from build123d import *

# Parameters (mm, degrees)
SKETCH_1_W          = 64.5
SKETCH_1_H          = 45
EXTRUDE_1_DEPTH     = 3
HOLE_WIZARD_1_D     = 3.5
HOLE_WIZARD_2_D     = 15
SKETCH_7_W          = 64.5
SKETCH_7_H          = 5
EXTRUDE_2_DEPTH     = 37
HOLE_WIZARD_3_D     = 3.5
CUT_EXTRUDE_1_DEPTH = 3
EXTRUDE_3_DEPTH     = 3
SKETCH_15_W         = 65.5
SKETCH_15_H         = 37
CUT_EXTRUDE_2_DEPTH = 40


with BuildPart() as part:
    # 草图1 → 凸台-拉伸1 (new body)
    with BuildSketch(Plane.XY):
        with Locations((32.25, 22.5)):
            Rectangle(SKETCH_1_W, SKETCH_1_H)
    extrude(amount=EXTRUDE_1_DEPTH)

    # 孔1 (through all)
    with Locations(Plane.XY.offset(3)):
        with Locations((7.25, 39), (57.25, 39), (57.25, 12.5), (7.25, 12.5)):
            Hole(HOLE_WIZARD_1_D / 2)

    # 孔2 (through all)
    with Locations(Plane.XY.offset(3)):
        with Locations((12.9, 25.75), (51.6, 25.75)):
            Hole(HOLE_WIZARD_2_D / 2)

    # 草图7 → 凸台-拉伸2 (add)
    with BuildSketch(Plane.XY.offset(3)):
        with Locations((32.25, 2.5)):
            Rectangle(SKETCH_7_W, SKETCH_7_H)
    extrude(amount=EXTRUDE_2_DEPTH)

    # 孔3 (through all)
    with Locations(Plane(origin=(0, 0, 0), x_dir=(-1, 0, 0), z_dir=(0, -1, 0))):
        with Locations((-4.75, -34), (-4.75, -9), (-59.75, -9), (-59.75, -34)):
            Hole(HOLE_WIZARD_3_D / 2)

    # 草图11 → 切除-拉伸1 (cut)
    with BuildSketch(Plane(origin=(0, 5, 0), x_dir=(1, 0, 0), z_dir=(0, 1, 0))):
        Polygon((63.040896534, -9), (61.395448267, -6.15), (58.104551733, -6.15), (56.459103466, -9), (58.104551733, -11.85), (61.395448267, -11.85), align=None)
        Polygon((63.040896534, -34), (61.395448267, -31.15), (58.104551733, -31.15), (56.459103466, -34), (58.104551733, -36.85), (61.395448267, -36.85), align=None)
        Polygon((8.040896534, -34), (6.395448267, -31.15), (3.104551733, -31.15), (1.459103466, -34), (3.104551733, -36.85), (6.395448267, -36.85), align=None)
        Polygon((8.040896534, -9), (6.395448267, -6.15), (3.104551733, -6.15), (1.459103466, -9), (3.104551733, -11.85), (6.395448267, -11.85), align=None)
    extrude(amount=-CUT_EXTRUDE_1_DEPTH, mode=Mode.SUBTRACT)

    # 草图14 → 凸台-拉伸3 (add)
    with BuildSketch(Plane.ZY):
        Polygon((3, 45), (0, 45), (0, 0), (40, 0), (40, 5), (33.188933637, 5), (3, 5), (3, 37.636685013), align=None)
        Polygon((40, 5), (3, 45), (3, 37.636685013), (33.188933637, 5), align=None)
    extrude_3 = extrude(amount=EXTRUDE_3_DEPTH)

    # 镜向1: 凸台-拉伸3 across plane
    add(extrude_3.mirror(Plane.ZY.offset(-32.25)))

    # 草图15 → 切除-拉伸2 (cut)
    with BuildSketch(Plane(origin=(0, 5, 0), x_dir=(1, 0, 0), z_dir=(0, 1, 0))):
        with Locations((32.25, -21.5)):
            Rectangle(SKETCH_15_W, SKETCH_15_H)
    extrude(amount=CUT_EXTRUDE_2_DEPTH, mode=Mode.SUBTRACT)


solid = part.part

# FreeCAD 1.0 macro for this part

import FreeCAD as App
import Part
import Sketcher
Q = App.Units.Quantity

doc = App.newDocument("Part")
body = doc.addObject("PartDesign::Body", "Body")

sketch1 = doc.addObject("Sketcher::SketchObject", "Sketch")
body.addObject(sketch1)
sketch1.AttachmentSupport = (doc.XY_Plane, [""])
sketch1.MapMode = "FlatFace"
sketch1.addGeometry(Part.LineSegment(App.Vector(0, 45, 0), App.Vector(0, 0, 0)), False)
sketch1.addGeometry(Part.LineSegment(App.Vector(0, 0, 0), App.Vector(64.5, 0, 0)), False)
sketch1.addGeometry(Part.LineSegment(App.Vector(64.5, 0, 0), App.Vector(64.5, 45, 0)), False)
sketch1.addGeometry(Part.LineSegment(App.Vector(64.5, 45, 0), App.Vector(0, 45, 0)), False)
sketch1.addConstraint(Sketcher.Constraint("Coincident", 0, 2, 1, 1))
sketch1.addConstraint(Sketcher.Constraint("Coincident", 1, 2, 2, 1))
sketch1.addConstraint(Sketcher.Constraint("Coincident", 2, 2, 3, 1))
sketch1.addConstraint(Sketcher.Constraint("Coincident", 3, 2, 0, 1))
sketch1.addConstraint(Sketcher.Constraint("Vertical", 0))
sketch1.addConstraint(Sketcher.Constraint("Horizontal", 1))
sketch1.addConstraint(Sketcher.Constraint("Vertical", 2))
sketch1.addConstraint(Sketcher.Constraint("Horizontal", 3))
sketch1.addConstraint(Sketcher.Constraint("Coincident", 0, 2, -1, 1))
sketch1.addConstraint(Sketcher.Constraint("DistanceY", 0, 2, 0, 1, Q("45 mm")))
sketch1.addConstraint(Sketcher.Constraint("DistanceX", 1, 1, 1, 2, Q("64.5 mm")))
pad1 = doc.addObject("PartDesign::Pad", "Pad")
body.addObject(pad1)
pad1.Profile = sketch1
pad1.Length = 3

sketch2 = doc.addObject("Sketcher::SketchObject", "Sketch001")
body.addObject(sketch2)
sketch2.AttachmentSupport = (doc.XY_Plane, [""])
sketch2.MapMode = "FlatFace"
sketch2.AttachmentOffset = App.Placement(App.Vector(0, 0, 3), App.Rotation())
sketch2.addGeometry(Part.Circle(App.Vector(7.25, 39, 0), App.Vector(0, 0, 1), 1.75), False)
sketch2.addGeometry(Part.Circle(App.Vector(57.25, 39, 0), App.Vector(0, 0, 1), 1.75), False)
sketch2.addGeometry(Part.Circle(App.Vector(57.25, 12.5, 0), App.Vector(0, 0, 1), 1.75), False)
sketch2.addGeometry(Part.Circle(App.Vector(7.25, 12.5, 0), App.Vector(0, 0, 1), 1.75), False)
sketch2.addConstraint(Sketcher.Constraint("Equal", 0, 1))
sketch2.addConstraint(Sketcher.Constraint("Equal", 1, 2))
sketch2.addConstraint(Sketcher.Constraint("Equal", 2, 3))
sketch2.addConstraint(Sketcher.Constraint("Horizontal", 0, 3, 1, 3))
sketch2.addConstraint(Sketcher.Constraint("Horizontal", 2, 3, 3, 3))
sketch2.addConstraint(Sketcher.Constraint("Vertical", 1, 3, 2, 3))
sketch2.addConstraint(Sketcher.Constraint("Vertical", 0, 3, 3, 3))
sketch2.addConstraint(Sketcher.Constraint("Diameter", 0, Q("3.5 mm")))
sketch2.addConstraint(Sketcher.Constraint("DistanceY", -1, 1, 0, 3, Q("39 mm")))
sketch2.addConstraint(Sketcher.Constraint("DistanceX", 0, 3, 1, 3, Q("50 mm")))
sketch2.addConstraint(Sketcher.Constraint("DistanceY", -1, 1, 2, 3, Q("12.5 mm")))
sketch2.addConstraint(Sketcher.Constraint("DistanceX", -1, 1, 0, 3, Q("7.25 mm")))
doc.recompute()
hole = doc.addObject("PartDesign::Hole", "Hole")
body.addObject(hole)
hole.Profile = sketch2
hole.ThreadType = "None"
hole.Diameter = 3.5
hole.DepthType = "ThroughAll"

sketch3 = doc.addObject("Sketcher::SketchObject", "Sketch002")
body.addObject(sketch3)
sketch3.AttachmentSupport = (doc.XY_Plane, [""])
sketch3.MapMode = "FlatFace"
sketch3.AttachmentOffset = App.Placement(App.Vector(0, 0, 3), App.Rotation())
sketch3.addGeometry(Part.Circle(App.Vector(12.9, 25.75, 0), App.Vector(0, 0, 1), 7.5), False)
sketch3.addGeometry(Part.Circle(App.Vector(51.6, 25.75, 0), App.Vector(0, 0, 1), 7.5), False)
sketch3.addConstraint(Sketcher.Constraint("Equal", 0, 1))
sketch3.addConstraint(Sketcher.Constraint("Horizontal", 0, 3, 1, 3))
sketch3.addConstraint(Sketcher.Constraint("Diameter", 0, Q("15 mm")))
sketch3.addConstraint(Sketcher.Constraint("DistanceX", -1, 1, 0, 3, Q("12.9 mm")))
sketch3.addConstraint(Sketcher.Constraint("DistanceX", -1, 1, 1, 3, Q("51.6 mm")))
sketch3.addConstraint(Sketcher.Constraint("DistanceY", -1, 1, 0, 3, Q("25.75 mm")))
doc.recompute()
hole2 = doc.addObject("PartDesign::Hole", "Hole001")
body.addObject(hole2)
hole2.Profile = sketch3
hole2.ThreadType = "None"
hole2.Diameter = 15
hole2.DepthType = "ThroughAll"

sketch4 = doc.addObject("Sketcher::SketchObject", "Sketch003")
body.addObject(sketch4)
sketch4.AttachmentSupport = (doc.XY_Plane, [""])
sketch4.MapMode = "FlatFace"
sketch4.AttachmentOffset = App.Placement(App.Vector(0, 0, 3), App.Rotation())
sketch4.addGeometry(Part.LineSegment(App.Vector(0, 5, 0), App.Vector(0, 0, 0)), False)
sketch4.addGeometry(Part.LineSegment(App.Vector(0, 0, 0), App.Vector(64.5, 0, 0)), False)
sketch4.addGeometry(Part.LineSegment(App.Vector(64.5, 0, 0), App.Vector(64.5, 5, 0)), False)
sketch4.addGeometry(Part.LineSegment(App.Vector(64.5, 5, 0), App.Vector(0, 5, 0)), False)
sketch4.addConstraint(Sketcher.Constraint("Coincident", 0, 2, 1, 1))
sketch4.addConstraint(Sketcher.Constraint("Coincident", 1, 2, 2, 1))
sketch4.addConstraint(Sketcher.Constraint("Coincident", 2, 2, 3, 1))
sketch4.addConstraint(Sketcher.Constraint("Coincident", 3, 2, 0, 1))
sketch4.addConstraint(Sketcher.Constraint("Vertical", 0))
sketch4.addConstraint(Sketcher.Constraint("Horizontal", 1))
sketch4.addConstraint(Sketcher.Constraint("Vertical", 2))
sketch4.addConstraint(Sketcher.Constraint("Horizontal", 3))
sketch4.addConstraint(Sketcher.Constraint("Coincident", 0, 2, -1, 1))
sketch4.addConstraint(Sketcher.Constraint("DistanceY", 0, 2, 0, 1, Q("5 mm")))
sketch4.addConstraint(Sketcher.Constraint("DistanceX", 1, 1, 1, 2, Q("64.5 mm")))
pad2 = doc.addObject("PartDesign::Pad", "Pad001")
body.addObject(pad2)
pad2.Profile = sketch4
pad2.Length = 37

sketch5 = doc.addObject("Sketcher::SketchObject", "Sketch004")
body.addObject(sketch5)
sketch5.AttachmentSupport = (doc.XZ_Plane, [""])
sketch5.MapMode = "FlatFace"
sketch5.addGeometry(Part.Circle(App.Vector(4.75, 34, 0), App.Vector(0, 0, 1), 1.75), False)
sketch5.addGeometry(Part.Circle(App.Vector(4.75, 9, 0), App.Vector(0, 0, 1), 1.75), False)
sketch5.addGeometry(Part.Circle(App.Vector(59.75, 9, 0), App.Vector(0, 0, 1), 1.75), False)
sketch5.addGeometry(Part.Circle(App.Vector(59.75, 34, 0), App.Vector(0, 0, 1), 1.75), False)
sketch5.addConstraint(Sketcher.Constraint("Equal", 0, 1))
sketch5.addConstraint(Sketcher.Constraint("Equal", 1, 2))
sketch5.addConstraint(Sketcher.Constraint("Equal", 2, 3))
sketch5.addConstraint(Sketcher.Constraint("Horizontal", 1, 3, 2, 3))
sketch5.addConstraint(Sketcher.Constraint("Horizontal", 0, 3, 3, 3))
sketch5.addConstraint(Sketcher.Constraint("Vertical", 0, 3, 1, 3))
sketch5.addConstraint(Sketcher.Constraint("Vertical", 2, 3, 3, 3))
sketch5.addConstraint(Sketcher.Constraint("Diameter", 0, Q("3.5 mm")))
sketch5.addConstraint(Sketcher.Constraint("DistanceY", -1, 1, 0, 3, Q("34 mm")))
sketch5.addConstraint(Sketcher.Constraint("DistanceY", -1, 1, 1, 3, Q("9 mm")))
sketch5.addConstraint(Sketcher.Constraint("DistanceX", 1, 3, 2, 3, Q("55 mm")))
sketch5.addConstraint(Sketcher.Constraint("DistanceX", -1, 1, 0, 3, Q("4.75 mm")))
doc.recompute()
hole3 = doc.addObject("PartDesign::Hole", "Hole002")
body.addObject(hole3)
hole3.Profile = sketch5
hole3.ThreadType = "None"
hole3.Diameter = 3.5
hole3.DepthType = "ThroughAll"

sketch6 = doc.addObject("Sketcher::SketchObject", "Sketch005")
body.addObject(sketch6)
sketch6.AttachmentSupport = (doc.XZ_Plane, [""])
sketch6.MapMode = "FlatFace"
sketch6.AttachmentOffset = App.Placement(App.Vector(0, 0, -5), App.Rotation())
sketch6.addGeometry(Part.LineSegment(App.Vector(63.040897, 9, 0), App.Vector(61.395448, 6.15, 0)), False)
sketch6.addGeometry(Part.LineSegment(App.Vector(61.395448, 6.15, 0), App.Vector(58.104552, 6.15, 0)), False)
sketch6.addGeometry(Part.LineSegment(App.Vector(58.104552, 6.15, 0), App.Vector(56.459103, 9, 0)), False)
sketch6.addGeometry(Part.LineSegment(App.Vector(56.459103, 9, 0), App.Vector(58.104552, 11.85, 0)), False)
sketch6.addGeometry(Part.LineSegment(App.Vector(58.104552, 11.85, 0), App.Vector(61.395448, 11.85, 0)), False)
sketch6.addGeometry(Part.LineSegment(App.Vector(61.395448, 11.85, 0), App.Vector(63.040897, 9, 0)), False)
sketch6.addGeometry(Part.LineSegment(App.Vector(63.040897, 34, 0), App.Vector(61.395448, 31.15, 0)), False)
sketch6.addGeometry(Part.LineSegment(App.Vector(61.395448, 31.15, 0), App.Vector(58.104552, 31.15, 0)), False)
sketch6.addGeometry(Part.LineSegment(App.Vector(58.104552, 31.15, 0), App.Vector(56.459103, 34, 0)), False)
sketch6.addGeometry(Part.LineSegment(App.Vector(56.459103, 34, 0), App.Vector(58.104552, 36.85, 0)), False)
sketch6.addGeometry(Part.LineSegment(App.Vector(58.104552, 36.85, 0), App.Vector(61.395448, 36.85, 0)), False)
sketch6.addGeometry(Part.LineSegment(App.Vector(61.395448, 36.85, 0), App.Vector(63.040897, 34, 0)), False)
sketch6.addGeometry(Part.LineSegment(App.Vector(8.040897, 34, 0), App.Vector(6.395448, 31.15, 0)), False)
sketch6.addGeometry(Part.LineSegment(App.Vector(6.395448, 31.15, 0), App.Vector(3.104552, 31.15, 0)), False)
sketch6.addGeometry(Part.LineSegment(App.Vector(3.104552, 31.15, 0), App.Vector(1.459103, 34, 0)), False)
sketch6.addGeometry(Part.LineSegment(App.Vector(1.459103, 34, 0), App.Vector(3.104552, 36.85, 0)), False)
sketch6.addGeometry(Part.LineSegment(App.Vector(3.104552, 36.85, 0), App.Vector(6.395448, 36.85, 0)), False)
sketch6.addGeometry(Part.LineSegment(App.Vector(6.395448, 36.85, 0), App.Vector(8.040897, 34, 0)), False)
sketch6.addGeometry(Part.LineSegment(App.Vector(8.040897, 9, 0), App.Vector(6.395448, 6.15, 0)), False)
sketch6.addGeometry(Part.LineSegment(App.Vector(6.395448, 6.15, 0), App.Vector(3.104552, 6.15, 0)), False)
sketch6.addGeometry(Part.LineSegment(App.Vector(3.104552, 6.15, 0), App.Vector(1.459103, 9, 0)), False)
sketch6.addGeometry(Part.LineSegment(App.Vector(1.459103, 9, 0), App.Vector(3.104552, 11.85, 0)), False)
sketch6.addGeometry(Part.LineSegment(App.Vector(3.104552, 11.85, 0), App.Vector(6.395448, 11.85, 0)), False)
sketch6.addGeometry(Part.LineSegment(App.Vector(6.395448, 11.85, 0), App.Vector(8.040897, 9, 0)), False)
sketch6.addConstraint(Sketcher.Constraint("Coincident", 0, 2, 1, 1))
sketch6.addConstraint(Sketcher.Constraint("Coincident", 1, 2, 2, 1))
sketch6.addConstraint(Sketcher.Constraint("Coincident", 2, 2, 3, 1))
sketch6.addConstraint(Sketcher.Constraint("Coincident", 3, 2, 4, 1))
sketch6.addConstraint(Sketcher.Constraint("Coincident", 4, 2, 5, 1))
sketch6.addConstraint(Sketcher.Constraint("Coincident", 5, 2, 0, 1))
sketch6.addConstraint(Sketcher.Constraint("Coincident", 6, 2, 7, 1))
sketch6.addConstraint(Sketcher.Constraint("Coincident", 7, 2, 8, 1))
sketch6.addConstraint(Sketcher.Constraint("Coincident", 8, 2, 9, 1))
sketch6.addConstraint(Sketcher.Constraint("Coincident", 9, 2, 10, 1))
sketch6.addConstraint(Sketcher.Constraint("Coincident", 10, 2, 11, 1))
sketch6.addConstraint(Sketcher.Constraint("Coincident", 11, 2, 6, 1))
sketch6.addConstraint(Sketcher.Constraint("Coincident", 12, 2, 13, 1))
sketch6.addConstraint(Sketcher.Constraint("Coincident", 13, 2, 14, 1))
sketch6.addConstraint(Sketcher.Constraint("Coincident", 14, 2, 15, 1))
sketch6.addConstraint(Sketcher.Constraint("Coincident", 15, 2, 16, 1))
sketch6.addConstraint(Sketcher.Constraint("Coincident", 16, 2, 17, 1))
sketch6.addConstraint(Sketcher.Constraint("Coincident", 17, 2, 12, 1))
sketch6.addConstraint(Sketcher.Constraint("Coincident", 18, 2, 19, 1))
sketch6.addConstraint(Sketcher.Constraint("Coincident", 19, 2, 20, 1))
sketch6.addConstraint(Sketcher.Constraint("Coincident", 20, 2, 21, 1))
sketch6.addConstraint(Sketcher.Constraint("Coincident", 21, 2, 22, 1))
sketch6.addConstraint(Sketcher.Constraint("Coincident", 22, 2, 23, 1))
sketch6.addConstraint(Sketcher.Constraint("Coincident", 23, 2, 18, 1))
sketch6.addConstraint(Sketcher.Constraint("Horizontal", 1))
sketch6.addConstraint(Sketcher.Constraint("Horizontal", 4))
sketch6.addConstraint(Sketcher.Constraint("Horizontal", 7))
sketch6.addConstraint(Sketcher.Constraint("Horizontal", 10))
sketch6.addConstraint(Sketcher.Constraint("Horizontal", 13))
sketch6.addConstraint(Sketcher.Constraint("Horizontal", 16))
sketch6.addConstraint(Sketcher.Constraint("Horizontal", 19))
sketch6.addConstraint(Sketcher.Constraint("Horizontal", 22))
sketch6.addConstraint(Sketcher.Constraint("Parallel", 0, 3))
sketch6.addConstraint(Sketcher.Constraint("Parallel", 2, 5))
sketch6.addConstraint(Sketcher.Constraint("Parallel", 3, 6))
sketch6.addConstraint(Sketcher.Constraint("Parallel", 5, 8))
sketch6.addConstraint(Sketcher.Constraint("Parallel", 6, 9))
sketch6.addConstraint(Sketcher.Constraint("Parallel", 8, 11))
sketch6.addConstraint(Sketcher.Constraint("Parallel", 9, 12))
sketch6.addConstraint(Sketcher.Constraint("Parallel", 11, 14))
sketch6.addConstraint(Sketcher.Constraint("Parallel", 12, 15))
sketch6.addConstraint(Sketcher.Constraint("Parallel", 14, 17))
sketch6.addConstraint(Sketcher.Constraint("Parallel", 15, 18))
sketch6.addConstraint(Sketcher.Constraint("Parallel", 17, 20))
sketch6.addConstraint(Sketcher.Constraint("Parallel", 18, 21))
sketch6.addConstraint(Sketcher.Constraint("Parallel", 20, 23))
sketch6.addConstraint(Sketcher.Constraint("Horizontal", 2, 2, 5, 2))
sketch6.addConstraint(Sketcher.Constraint("Horizontal", 8, 2, 11, 2))
sketch6.addConstraint(Sketcher.Constraint("Horizontal", 7, 2, 12, 2))
sketch6.addConstraint(Sketcher.Constraint("Horizontal", 11, 2, 14, 2))
sketch6.addConstraint(Sketcher.Constraint("Horizontal", 10, 2, 15, 2))
sketch6.addConstraint(Sketcher.Constraint("Horizontal", 14, 2, 17, 2))
sketch6.addConstraint(Sketcher.Constraint("Horizontal", 1, 2, 18, 2))
sketch6.addConstraint(Sketcher.Constraint("Horizontal", 5, 2, 20, 2))
sketch6.addConstraint(Sketcher.Constraint("Horizontal", 4, 2, 21, 2))
sketch6.addConstraint(Sketcher.Constraint("Horizontal", 20, 2, 23, 2))
sketch6.addConstraint(Sketcher.Constraint("Vertical", 1, 2, 3, 2))
sketch6.addConstraint(Sketcher.Constraint("Vertical", 0, 2, 4, 2))
sketch6.addConstraint(Sketcher.Constraint("Vertical", 4, 2, 6, 2))
sketch6.addConstraint(Sketcher.Constraint("Vertical", 3, 2, 7, 2))
sketch6.addConstraint(Sketcher.Constraint("Vertical", 2, 2, 8, 2))
sketch6.addConstraint(Sketcher.Constraint("Vertical", 7, 2, 9, 2))
sketch6.addConstraint(Sketcher.Constraint("Vertical", 16, 2, 18, 2))
sketch6.addConstraint(Sketcher.Constraint("Vertical", 15, 2, 19, 2))
sketch6.addConstraint(Sketcher.Constraint("Equal", 10, 13))
sketch6.addConstraint(Sketcher.Constraint("Angle", 0, Q("-120 deg")))
sketch6.addConstraint(Sketcher.Constraint("DistanceY", -1, 1, 2, 2, Q("9 mm")))
sketch6.addConstraint(Sketcher.Constraint("DistanceY", -1, 1, 8, 2, Q("34 mm")))
sketch6.addConstraint(Sketcher.Constraint("DistanceX", 12, 2, 6, 2, Q("55 mm")))
sketch6.addConstraint(Sketcher.Constraint("DistanceY", 1, 2, 3, 2, Q("5.7 mm")))
sketch6.addConstraint(Sketcher.Constraint("DistanceX", 1, 2, 1, 1, Q("3.290897 mm")))
sketch6.addConstraint(Sketcher.Constraint("DistanceX", -1, 1, 0, 2, Q("61.395448 mm")))
pocket1 = doc.addObject("PartDesign::Pocket", "Pocket")
body.addObject(pocket1)
pocket1.Profile = sketch6
pocket1.Length = 3
pocket1.Reversed = True

sketch7 = doc.addObject("Sketcher::SketchObject", "Sketch006")
body.addObject(sketch7)
sketch7.AttachmentSupport = (doc.YZ_Plane, [""])
sketch7.MapMode = "FlatFace"
sketch7.addGeometry(Part.LineSegment(App.Vector(45, 3, 0), App.Vector(45, 0, 0)), False)
sketch7.addGeometry(Part.LineSegment(App.Vector(45, 0, 0), App.Vector(0, 0, 0)), False)
sketch7.addGeometry(Part.LineSegment(App.Vector(0, 0, 0), App.Vector(0, 40, 0)), False)
sketch7.addGeometry(Part.LineSegment(App.Vector(0, 40, 0), App.Vector(5, 40, 0)), False)
sketch7.addGeometry(Part.LineSegment(App.Vector(5, 40, 0), App.Vector(45, 3, 0)), False)
sketch7.addGeometry(Part.LineSegment(App.Vector(5, 33.188934, 0), App.Vector(5, 3, 0)), False)
sketch7.addGeometry(Part.LineSegment(App.Vector(5, 3, 0), App.Vector(37.636685, 3, 0)), False)
sketch7.addGeometry(Part.LineSegment(App.Vector(37.636685, 3, 0), App.Vector(5, 33.188934, 0)), False)
sketch7.addConstraint(Sketcher.Constraint("Coincident", 0, 2, 1, 1))
sketch7.addConstraint(Sketcher.Constraint("Coincident", 1, 2, 2, 1))
sketch7.addConstraint(Sketcher.Constraint("Coincident", 2, 2, 3, 1))
sketch7.addConstraint(Sketcher.Constraint("Coincident", 3, 2, 4, 1))
sketch7.addConstraint(Sketcher.Constraint("Coincident", 4, 2, 0, 1))
sketch7.addConstraint(Sketcher.Constraint("Coincident", 5, 2, 6, 1))
sketch7.addConstraint(Sketcher.Constraint("Coincident", 6, 2, 7, 1))
sketch7.addConstraint(Sketcher.Constraint("Coincident", 7, 2, 5, 1))
sketch7.addConstraint(Sketcher.Constraint("Vertical", 0))
sketch7.addConstraint(Sketcher.Constraint("Horizontal", 1))
sketch7.addConstraint(Sketcher.Constraint("Vertical", 2))
sketch7.addConstraint(Sketcher.Constraint("Horizontal", 3))
sketch7.addConstraint(Sketcher.Constraint("Vertical", 5))
sketch7.addConstraint(Sketcher.Constraint("Horizontal", 6))
sketch7.addConstraint(Sketcher.Constraint("Coincident", 1, 2, -1, 1))
sketch7.addConstraint(Sketcher.Constraint("Parallel", 4, 7))
sketch7.addConstraint(Sketcher.Constraint("Horizontal", 4, 2, 5, 2))
sketch7.addConstraint(Sketcher.Constraint("Vertical", 3, 2, 5, 2))
sketch7.addConstraint(Sketcher.Constraint("DistanceX", 1, 2, 1, 1, Q("45 mm")))
sketch7.addConstraint(Sketcher.Constraint("DistanceX", 3, 1, 3, 2, Q("5 mm")))
sketch7.addConstraint(Sketcher.Constraint("DistanceY", 0, 2, 0, 1, Q("3 mm")))
sketch7.addConstraint(Sketcher.Constraint("DistanceY", 2, 1, 2, 2, Q("40 mm")))
sketch7.addConstraint(Sketcher.Constraint("DistanceX", 6, 1, 6, 2, Q("32.636685 mm")))
pad3 = doc.addObject("PartDesign::Pad", "Pad002")
body.addObject(pad3)
pad3.Profile = sketch7
pad3.Length = 3
pad3.Reversed = True
doc.recompute()

datumplane = doc.addObject("PartDesign::Plane", "DatumPlane")
body.addObject(datumplane)
datumplane.AttachmentSupport = (doc.YZ_Plane, [""])
datumplane.MapMode = "FlatFace"
datumplane.AttachmentOffset = App.Placement(App.Vector(0, 0, 32.25), App.Rotation())
mirrored = doc.addObject("PartDesign::Mirrored", "Mirrored")
body.addObject(mirrored)
mirrored.Originals = [pad3]
mirrored.MirrorPlane = (datumplane, [""])
body.Tip = mirrored

sketch8 = doc.addObject("Sketcher::SketchObject", "Sketch007")
body.addObject(sketch8)
sketch8.AttachmentSupport = (doc.XZ_Plane, [""])
sketch8.MapMode = "FlatFace"
sketch8.AttachmentOffset = App.Placement(App.Vector(0, 0, -5), App.Rotation())
sketch8.addGeometry(Part.LineSegment(App.Vector(-0.5, 3, 0), App.Vector(-0.5, 40, 0)), False)
sketch8.addGeometry(Part.LineSegment(App.Vector(-0.5, 40, 0), App.Vector(65, 40, 0)), False)
sketch8.addGeometry(Part.LineSegment(App.Vector(65, 40, 0), App.Vector(65, 3, 0)), False)
sketch8.addGeometry(Part.LineSegment(App.Vector(65, 3, 0), App.Vector(-0.5, 3, 0)), False)
sketch8.addConstraint(Sketcher.Constraint("Coincident", 0, 2, 1, 1))
sketch8.addConstraint(Sketcher.Constraint("Coincident", 1, 2, 2, 1))
sketch8.addConstraint(Sketcher.Constraint("Coincident", 2, 2, 3, 1))
sketch8.addConstraint(Sketcher.Constraint("Coincident", 3, 2, 0, 1))
sketch8.addConstraint(Sketcher.Constraint("Vertical", 0))
sketch8.addConstraint(Sketcher.Constraint("Horizontal", 1))
sketch8.addConstraint(Sketcher.Constraint("Vertical", 2))
sketch8.addConstraint(Sketcher.Constraint("Horizontal", 3))
sketch8.addConstraint(Sketcher.Constraint("DistanceY", 0, 1, 0, 2, Q("37 mm")))
sketch8.addConstraint(Sketcher.Constraint("DistanceX", 1, 1, 1, 2, Q("65.5 mm")))
sketch8.addConstraint(Sketcher.Constraint("DistanceY", -1, 1, 0, 2, Q("40 mm")))
sketch8.addConstraint(Sketcher.Constraint("DistanceX", -1, 1, 1, 2, Q("65 mm")))
pocket2 = doc.addObject("PartDesign::Pocket", "Pocket001")
body.addObject(pocket2)
pocket2.Profile = sketch8
pocket2.Length = 40

doc.recompute()
